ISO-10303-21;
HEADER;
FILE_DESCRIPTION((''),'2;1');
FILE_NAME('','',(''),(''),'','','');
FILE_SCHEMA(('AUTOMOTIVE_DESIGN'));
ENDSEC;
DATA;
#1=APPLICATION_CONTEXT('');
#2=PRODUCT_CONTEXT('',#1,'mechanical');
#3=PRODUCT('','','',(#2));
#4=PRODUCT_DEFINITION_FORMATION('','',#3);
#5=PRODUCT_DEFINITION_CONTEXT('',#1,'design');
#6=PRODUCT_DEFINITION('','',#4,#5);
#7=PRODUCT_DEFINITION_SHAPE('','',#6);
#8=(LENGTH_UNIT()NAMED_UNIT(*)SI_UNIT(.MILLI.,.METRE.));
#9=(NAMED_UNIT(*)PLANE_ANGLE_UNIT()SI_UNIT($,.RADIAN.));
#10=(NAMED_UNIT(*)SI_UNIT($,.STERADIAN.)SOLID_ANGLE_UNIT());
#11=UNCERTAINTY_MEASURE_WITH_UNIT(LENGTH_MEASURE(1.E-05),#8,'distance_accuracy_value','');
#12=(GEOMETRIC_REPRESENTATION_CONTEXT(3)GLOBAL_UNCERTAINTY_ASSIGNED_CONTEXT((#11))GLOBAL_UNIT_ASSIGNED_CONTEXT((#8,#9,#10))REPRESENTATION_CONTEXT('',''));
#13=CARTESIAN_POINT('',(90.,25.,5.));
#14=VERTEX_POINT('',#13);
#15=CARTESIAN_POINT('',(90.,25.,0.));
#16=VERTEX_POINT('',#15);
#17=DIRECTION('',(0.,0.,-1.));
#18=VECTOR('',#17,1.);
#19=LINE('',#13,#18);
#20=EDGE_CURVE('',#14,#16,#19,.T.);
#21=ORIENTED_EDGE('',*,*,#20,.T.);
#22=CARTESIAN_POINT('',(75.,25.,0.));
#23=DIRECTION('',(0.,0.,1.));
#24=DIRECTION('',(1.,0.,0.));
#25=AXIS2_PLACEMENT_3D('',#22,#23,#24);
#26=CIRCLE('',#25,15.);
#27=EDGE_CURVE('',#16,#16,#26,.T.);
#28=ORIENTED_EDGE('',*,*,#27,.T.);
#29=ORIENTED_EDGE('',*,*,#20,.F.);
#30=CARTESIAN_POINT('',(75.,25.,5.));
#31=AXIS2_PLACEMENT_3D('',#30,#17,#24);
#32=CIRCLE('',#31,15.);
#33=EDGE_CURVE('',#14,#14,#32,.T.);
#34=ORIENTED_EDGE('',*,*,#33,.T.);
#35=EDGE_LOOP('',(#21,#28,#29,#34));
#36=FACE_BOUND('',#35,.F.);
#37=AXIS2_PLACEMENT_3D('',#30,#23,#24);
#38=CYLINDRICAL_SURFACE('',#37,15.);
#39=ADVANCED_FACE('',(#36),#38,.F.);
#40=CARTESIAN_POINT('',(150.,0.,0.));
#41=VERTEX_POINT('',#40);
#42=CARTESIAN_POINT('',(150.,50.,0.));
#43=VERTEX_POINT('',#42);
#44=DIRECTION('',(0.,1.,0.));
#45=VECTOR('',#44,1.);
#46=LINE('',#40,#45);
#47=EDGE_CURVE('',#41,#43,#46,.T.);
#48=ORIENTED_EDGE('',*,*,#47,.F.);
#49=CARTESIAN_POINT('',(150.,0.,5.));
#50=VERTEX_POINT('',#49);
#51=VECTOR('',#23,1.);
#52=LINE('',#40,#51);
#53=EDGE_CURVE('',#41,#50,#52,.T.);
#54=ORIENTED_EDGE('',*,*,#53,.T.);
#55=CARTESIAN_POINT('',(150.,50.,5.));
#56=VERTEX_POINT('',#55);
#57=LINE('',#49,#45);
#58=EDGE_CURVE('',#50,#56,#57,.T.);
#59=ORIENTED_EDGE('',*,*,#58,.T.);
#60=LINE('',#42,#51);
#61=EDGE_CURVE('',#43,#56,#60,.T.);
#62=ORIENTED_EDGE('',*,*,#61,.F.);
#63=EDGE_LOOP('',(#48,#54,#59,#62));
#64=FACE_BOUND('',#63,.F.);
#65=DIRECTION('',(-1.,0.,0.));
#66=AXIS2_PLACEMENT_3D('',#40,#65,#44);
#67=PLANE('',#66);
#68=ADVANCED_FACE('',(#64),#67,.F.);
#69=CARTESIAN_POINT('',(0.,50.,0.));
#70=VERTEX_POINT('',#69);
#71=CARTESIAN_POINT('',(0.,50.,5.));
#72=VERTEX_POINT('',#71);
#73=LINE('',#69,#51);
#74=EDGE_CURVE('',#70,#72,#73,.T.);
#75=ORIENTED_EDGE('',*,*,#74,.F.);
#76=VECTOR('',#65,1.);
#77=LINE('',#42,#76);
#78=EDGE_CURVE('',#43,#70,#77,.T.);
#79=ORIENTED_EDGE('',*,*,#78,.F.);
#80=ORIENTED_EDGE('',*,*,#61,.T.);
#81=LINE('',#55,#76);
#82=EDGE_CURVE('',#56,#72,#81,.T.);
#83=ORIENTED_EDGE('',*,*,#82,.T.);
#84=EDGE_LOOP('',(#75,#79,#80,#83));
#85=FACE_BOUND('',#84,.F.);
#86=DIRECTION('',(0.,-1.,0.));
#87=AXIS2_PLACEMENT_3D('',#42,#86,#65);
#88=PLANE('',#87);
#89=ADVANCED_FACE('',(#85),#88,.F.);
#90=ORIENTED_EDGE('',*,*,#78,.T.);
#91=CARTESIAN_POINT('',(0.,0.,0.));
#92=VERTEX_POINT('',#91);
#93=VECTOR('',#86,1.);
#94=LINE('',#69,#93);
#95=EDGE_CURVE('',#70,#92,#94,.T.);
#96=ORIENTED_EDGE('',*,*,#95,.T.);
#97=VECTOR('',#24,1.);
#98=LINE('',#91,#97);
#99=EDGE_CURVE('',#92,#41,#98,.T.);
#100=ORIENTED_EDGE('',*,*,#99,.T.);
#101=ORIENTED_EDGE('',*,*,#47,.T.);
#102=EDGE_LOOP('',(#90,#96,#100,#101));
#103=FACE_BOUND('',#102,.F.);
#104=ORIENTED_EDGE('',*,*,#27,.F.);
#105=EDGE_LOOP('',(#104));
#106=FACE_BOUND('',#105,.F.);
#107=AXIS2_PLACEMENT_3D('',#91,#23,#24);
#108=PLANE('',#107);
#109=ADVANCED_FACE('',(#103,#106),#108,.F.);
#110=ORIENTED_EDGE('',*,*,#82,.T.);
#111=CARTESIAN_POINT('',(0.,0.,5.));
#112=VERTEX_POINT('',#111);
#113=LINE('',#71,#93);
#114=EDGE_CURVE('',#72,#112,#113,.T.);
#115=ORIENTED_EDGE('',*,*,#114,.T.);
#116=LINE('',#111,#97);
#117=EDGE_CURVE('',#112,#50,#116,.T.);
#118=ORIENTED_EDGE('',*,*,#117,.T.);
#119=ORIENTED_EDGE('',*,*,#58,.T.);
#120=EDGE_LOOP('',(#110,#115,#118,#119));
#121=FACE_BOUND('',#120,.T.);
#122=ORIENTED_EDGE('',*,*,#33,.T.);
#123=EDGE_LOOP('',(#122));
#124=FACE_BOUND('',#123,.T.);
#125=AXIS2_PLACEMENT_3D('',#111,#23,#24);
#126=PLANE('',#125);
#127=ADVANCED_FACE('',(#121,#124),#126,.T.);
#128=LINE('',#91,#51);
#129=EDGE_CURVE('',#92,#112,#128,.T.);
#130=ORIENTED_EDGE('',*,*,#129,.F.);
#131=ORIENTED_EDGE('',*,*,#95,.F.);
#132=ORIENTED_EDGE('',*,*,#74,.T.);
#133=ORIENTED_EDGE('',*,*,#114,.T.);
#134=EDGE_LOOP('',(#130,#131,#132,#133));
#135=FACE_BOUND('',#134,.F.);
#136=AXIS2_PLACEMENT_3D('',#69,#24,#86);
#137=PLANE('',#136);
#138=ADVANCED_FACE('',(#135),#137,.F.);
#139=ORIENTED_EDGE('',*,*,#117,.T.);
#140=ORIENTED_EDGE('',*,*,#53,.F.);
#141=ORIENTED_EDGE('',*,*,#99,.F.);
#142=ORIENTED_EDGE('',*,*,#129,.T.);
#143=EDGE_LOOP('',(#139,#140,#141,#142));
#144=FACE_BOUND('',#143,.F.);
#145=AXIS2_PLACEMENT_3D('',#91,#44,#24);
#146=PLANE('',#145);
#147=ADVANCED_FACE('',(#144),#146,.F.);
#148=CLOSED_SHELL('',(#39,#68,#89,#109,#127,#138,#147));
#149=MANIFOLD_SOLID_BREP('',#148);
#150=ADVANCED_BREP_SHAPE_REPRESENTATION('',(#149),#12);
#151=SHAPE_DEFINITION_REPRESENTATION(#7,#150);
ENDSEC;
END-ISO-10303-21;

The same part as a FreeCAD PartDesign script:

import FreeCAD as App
import Part
import Sketcher
from FreeCAD import Vector


def add_polygon(sketch, points):
    """Adds a closed chain of lines whose ends are joined by coincident constraints."""
    first, n = sketch.GeometryCount, len(points)
    for a, b in zip(points, points[1:] + points[:1]):
        sketch.addGeometry(Part.LineSegment(App.Vector(*a, 0), App.Vector(*b, 0)), False)
    for i in range(n):
        sketch.addConstraint(Sketcher.Constraint("Coincident", first + i, 2, first + (i + 1) % n, 1))

doc = App.newDocument("Part")
body = doc.addObject("PartDesign::Body", "Body")

# Sketch on XY plane
sketch1 = doc.addObject("Sketcher::SketchObject", "Sketch")
body.addObject(sketch1)
sketch1.AttachmentSupport = (doc.XY_Plane, [""])
sketch1.MapMode = "FlatFace"
add_polygon(sketch1, [(0, 50), (0, 0), (150, 0), (150, 50)])  # lines 0-3
sketch1.addConstraint([
    Sketcher.Constraint("Vertical", 0),
    Sketcher.Constraint("Horizontal", 1),
    Sketcher.Constraint("Vertical", 2),
    Sketcher.Constraint("Horizontal", 3),
    Sketcher.Constraint("Coincident", 0, 2, -1, 1),
    Sketcher.Constraint("DistanceX", 1, 1, 1, 2, 150.0),
    Sketcher.Constraint("DistanceY", 0, 2, 0, 1, 50.0),
])
pad1 = doc.addObject("PartDesign::Pad", "Pad")
body.addObject(pad1)
pad1.Profile = sketch1
pad1.Length = 5

# Sketch on XY plane
sketch2 = doc.addObject("Sketcher::SketchObject", "Sketch001")
body.addObject(sketch2)
sketch2.AttachmentSupport = (doc.XY_Plane, [""])
sketch2.MapMode = "FlatFace"
sketch2.AttachmentOffset = App.Placement(Vector(0, 0, 5), App.Rotation())
sketch2.addGeometry(Part.Circle(Vector(75, 25, 0), Vector(0, 0, 1), 15), False)
sketch2.addConstraint([
    Sketcher.Constraint("Diameter", 0, 30.0),
    Sketcher.Constraint("DistanceX", -1, 1, 0, 3, 75.0),
    Sketcher.Constraint("DistanceY", -1, 1, 0, 3, 25.0),
])
pocket1 = doc.addObject("PartDesign::Pocket", "Pocket")
body.addObject(pocket1)
pocket1.Profile = sketch2
pocket1.Type = "ThroughAll"

doc.recompute()
